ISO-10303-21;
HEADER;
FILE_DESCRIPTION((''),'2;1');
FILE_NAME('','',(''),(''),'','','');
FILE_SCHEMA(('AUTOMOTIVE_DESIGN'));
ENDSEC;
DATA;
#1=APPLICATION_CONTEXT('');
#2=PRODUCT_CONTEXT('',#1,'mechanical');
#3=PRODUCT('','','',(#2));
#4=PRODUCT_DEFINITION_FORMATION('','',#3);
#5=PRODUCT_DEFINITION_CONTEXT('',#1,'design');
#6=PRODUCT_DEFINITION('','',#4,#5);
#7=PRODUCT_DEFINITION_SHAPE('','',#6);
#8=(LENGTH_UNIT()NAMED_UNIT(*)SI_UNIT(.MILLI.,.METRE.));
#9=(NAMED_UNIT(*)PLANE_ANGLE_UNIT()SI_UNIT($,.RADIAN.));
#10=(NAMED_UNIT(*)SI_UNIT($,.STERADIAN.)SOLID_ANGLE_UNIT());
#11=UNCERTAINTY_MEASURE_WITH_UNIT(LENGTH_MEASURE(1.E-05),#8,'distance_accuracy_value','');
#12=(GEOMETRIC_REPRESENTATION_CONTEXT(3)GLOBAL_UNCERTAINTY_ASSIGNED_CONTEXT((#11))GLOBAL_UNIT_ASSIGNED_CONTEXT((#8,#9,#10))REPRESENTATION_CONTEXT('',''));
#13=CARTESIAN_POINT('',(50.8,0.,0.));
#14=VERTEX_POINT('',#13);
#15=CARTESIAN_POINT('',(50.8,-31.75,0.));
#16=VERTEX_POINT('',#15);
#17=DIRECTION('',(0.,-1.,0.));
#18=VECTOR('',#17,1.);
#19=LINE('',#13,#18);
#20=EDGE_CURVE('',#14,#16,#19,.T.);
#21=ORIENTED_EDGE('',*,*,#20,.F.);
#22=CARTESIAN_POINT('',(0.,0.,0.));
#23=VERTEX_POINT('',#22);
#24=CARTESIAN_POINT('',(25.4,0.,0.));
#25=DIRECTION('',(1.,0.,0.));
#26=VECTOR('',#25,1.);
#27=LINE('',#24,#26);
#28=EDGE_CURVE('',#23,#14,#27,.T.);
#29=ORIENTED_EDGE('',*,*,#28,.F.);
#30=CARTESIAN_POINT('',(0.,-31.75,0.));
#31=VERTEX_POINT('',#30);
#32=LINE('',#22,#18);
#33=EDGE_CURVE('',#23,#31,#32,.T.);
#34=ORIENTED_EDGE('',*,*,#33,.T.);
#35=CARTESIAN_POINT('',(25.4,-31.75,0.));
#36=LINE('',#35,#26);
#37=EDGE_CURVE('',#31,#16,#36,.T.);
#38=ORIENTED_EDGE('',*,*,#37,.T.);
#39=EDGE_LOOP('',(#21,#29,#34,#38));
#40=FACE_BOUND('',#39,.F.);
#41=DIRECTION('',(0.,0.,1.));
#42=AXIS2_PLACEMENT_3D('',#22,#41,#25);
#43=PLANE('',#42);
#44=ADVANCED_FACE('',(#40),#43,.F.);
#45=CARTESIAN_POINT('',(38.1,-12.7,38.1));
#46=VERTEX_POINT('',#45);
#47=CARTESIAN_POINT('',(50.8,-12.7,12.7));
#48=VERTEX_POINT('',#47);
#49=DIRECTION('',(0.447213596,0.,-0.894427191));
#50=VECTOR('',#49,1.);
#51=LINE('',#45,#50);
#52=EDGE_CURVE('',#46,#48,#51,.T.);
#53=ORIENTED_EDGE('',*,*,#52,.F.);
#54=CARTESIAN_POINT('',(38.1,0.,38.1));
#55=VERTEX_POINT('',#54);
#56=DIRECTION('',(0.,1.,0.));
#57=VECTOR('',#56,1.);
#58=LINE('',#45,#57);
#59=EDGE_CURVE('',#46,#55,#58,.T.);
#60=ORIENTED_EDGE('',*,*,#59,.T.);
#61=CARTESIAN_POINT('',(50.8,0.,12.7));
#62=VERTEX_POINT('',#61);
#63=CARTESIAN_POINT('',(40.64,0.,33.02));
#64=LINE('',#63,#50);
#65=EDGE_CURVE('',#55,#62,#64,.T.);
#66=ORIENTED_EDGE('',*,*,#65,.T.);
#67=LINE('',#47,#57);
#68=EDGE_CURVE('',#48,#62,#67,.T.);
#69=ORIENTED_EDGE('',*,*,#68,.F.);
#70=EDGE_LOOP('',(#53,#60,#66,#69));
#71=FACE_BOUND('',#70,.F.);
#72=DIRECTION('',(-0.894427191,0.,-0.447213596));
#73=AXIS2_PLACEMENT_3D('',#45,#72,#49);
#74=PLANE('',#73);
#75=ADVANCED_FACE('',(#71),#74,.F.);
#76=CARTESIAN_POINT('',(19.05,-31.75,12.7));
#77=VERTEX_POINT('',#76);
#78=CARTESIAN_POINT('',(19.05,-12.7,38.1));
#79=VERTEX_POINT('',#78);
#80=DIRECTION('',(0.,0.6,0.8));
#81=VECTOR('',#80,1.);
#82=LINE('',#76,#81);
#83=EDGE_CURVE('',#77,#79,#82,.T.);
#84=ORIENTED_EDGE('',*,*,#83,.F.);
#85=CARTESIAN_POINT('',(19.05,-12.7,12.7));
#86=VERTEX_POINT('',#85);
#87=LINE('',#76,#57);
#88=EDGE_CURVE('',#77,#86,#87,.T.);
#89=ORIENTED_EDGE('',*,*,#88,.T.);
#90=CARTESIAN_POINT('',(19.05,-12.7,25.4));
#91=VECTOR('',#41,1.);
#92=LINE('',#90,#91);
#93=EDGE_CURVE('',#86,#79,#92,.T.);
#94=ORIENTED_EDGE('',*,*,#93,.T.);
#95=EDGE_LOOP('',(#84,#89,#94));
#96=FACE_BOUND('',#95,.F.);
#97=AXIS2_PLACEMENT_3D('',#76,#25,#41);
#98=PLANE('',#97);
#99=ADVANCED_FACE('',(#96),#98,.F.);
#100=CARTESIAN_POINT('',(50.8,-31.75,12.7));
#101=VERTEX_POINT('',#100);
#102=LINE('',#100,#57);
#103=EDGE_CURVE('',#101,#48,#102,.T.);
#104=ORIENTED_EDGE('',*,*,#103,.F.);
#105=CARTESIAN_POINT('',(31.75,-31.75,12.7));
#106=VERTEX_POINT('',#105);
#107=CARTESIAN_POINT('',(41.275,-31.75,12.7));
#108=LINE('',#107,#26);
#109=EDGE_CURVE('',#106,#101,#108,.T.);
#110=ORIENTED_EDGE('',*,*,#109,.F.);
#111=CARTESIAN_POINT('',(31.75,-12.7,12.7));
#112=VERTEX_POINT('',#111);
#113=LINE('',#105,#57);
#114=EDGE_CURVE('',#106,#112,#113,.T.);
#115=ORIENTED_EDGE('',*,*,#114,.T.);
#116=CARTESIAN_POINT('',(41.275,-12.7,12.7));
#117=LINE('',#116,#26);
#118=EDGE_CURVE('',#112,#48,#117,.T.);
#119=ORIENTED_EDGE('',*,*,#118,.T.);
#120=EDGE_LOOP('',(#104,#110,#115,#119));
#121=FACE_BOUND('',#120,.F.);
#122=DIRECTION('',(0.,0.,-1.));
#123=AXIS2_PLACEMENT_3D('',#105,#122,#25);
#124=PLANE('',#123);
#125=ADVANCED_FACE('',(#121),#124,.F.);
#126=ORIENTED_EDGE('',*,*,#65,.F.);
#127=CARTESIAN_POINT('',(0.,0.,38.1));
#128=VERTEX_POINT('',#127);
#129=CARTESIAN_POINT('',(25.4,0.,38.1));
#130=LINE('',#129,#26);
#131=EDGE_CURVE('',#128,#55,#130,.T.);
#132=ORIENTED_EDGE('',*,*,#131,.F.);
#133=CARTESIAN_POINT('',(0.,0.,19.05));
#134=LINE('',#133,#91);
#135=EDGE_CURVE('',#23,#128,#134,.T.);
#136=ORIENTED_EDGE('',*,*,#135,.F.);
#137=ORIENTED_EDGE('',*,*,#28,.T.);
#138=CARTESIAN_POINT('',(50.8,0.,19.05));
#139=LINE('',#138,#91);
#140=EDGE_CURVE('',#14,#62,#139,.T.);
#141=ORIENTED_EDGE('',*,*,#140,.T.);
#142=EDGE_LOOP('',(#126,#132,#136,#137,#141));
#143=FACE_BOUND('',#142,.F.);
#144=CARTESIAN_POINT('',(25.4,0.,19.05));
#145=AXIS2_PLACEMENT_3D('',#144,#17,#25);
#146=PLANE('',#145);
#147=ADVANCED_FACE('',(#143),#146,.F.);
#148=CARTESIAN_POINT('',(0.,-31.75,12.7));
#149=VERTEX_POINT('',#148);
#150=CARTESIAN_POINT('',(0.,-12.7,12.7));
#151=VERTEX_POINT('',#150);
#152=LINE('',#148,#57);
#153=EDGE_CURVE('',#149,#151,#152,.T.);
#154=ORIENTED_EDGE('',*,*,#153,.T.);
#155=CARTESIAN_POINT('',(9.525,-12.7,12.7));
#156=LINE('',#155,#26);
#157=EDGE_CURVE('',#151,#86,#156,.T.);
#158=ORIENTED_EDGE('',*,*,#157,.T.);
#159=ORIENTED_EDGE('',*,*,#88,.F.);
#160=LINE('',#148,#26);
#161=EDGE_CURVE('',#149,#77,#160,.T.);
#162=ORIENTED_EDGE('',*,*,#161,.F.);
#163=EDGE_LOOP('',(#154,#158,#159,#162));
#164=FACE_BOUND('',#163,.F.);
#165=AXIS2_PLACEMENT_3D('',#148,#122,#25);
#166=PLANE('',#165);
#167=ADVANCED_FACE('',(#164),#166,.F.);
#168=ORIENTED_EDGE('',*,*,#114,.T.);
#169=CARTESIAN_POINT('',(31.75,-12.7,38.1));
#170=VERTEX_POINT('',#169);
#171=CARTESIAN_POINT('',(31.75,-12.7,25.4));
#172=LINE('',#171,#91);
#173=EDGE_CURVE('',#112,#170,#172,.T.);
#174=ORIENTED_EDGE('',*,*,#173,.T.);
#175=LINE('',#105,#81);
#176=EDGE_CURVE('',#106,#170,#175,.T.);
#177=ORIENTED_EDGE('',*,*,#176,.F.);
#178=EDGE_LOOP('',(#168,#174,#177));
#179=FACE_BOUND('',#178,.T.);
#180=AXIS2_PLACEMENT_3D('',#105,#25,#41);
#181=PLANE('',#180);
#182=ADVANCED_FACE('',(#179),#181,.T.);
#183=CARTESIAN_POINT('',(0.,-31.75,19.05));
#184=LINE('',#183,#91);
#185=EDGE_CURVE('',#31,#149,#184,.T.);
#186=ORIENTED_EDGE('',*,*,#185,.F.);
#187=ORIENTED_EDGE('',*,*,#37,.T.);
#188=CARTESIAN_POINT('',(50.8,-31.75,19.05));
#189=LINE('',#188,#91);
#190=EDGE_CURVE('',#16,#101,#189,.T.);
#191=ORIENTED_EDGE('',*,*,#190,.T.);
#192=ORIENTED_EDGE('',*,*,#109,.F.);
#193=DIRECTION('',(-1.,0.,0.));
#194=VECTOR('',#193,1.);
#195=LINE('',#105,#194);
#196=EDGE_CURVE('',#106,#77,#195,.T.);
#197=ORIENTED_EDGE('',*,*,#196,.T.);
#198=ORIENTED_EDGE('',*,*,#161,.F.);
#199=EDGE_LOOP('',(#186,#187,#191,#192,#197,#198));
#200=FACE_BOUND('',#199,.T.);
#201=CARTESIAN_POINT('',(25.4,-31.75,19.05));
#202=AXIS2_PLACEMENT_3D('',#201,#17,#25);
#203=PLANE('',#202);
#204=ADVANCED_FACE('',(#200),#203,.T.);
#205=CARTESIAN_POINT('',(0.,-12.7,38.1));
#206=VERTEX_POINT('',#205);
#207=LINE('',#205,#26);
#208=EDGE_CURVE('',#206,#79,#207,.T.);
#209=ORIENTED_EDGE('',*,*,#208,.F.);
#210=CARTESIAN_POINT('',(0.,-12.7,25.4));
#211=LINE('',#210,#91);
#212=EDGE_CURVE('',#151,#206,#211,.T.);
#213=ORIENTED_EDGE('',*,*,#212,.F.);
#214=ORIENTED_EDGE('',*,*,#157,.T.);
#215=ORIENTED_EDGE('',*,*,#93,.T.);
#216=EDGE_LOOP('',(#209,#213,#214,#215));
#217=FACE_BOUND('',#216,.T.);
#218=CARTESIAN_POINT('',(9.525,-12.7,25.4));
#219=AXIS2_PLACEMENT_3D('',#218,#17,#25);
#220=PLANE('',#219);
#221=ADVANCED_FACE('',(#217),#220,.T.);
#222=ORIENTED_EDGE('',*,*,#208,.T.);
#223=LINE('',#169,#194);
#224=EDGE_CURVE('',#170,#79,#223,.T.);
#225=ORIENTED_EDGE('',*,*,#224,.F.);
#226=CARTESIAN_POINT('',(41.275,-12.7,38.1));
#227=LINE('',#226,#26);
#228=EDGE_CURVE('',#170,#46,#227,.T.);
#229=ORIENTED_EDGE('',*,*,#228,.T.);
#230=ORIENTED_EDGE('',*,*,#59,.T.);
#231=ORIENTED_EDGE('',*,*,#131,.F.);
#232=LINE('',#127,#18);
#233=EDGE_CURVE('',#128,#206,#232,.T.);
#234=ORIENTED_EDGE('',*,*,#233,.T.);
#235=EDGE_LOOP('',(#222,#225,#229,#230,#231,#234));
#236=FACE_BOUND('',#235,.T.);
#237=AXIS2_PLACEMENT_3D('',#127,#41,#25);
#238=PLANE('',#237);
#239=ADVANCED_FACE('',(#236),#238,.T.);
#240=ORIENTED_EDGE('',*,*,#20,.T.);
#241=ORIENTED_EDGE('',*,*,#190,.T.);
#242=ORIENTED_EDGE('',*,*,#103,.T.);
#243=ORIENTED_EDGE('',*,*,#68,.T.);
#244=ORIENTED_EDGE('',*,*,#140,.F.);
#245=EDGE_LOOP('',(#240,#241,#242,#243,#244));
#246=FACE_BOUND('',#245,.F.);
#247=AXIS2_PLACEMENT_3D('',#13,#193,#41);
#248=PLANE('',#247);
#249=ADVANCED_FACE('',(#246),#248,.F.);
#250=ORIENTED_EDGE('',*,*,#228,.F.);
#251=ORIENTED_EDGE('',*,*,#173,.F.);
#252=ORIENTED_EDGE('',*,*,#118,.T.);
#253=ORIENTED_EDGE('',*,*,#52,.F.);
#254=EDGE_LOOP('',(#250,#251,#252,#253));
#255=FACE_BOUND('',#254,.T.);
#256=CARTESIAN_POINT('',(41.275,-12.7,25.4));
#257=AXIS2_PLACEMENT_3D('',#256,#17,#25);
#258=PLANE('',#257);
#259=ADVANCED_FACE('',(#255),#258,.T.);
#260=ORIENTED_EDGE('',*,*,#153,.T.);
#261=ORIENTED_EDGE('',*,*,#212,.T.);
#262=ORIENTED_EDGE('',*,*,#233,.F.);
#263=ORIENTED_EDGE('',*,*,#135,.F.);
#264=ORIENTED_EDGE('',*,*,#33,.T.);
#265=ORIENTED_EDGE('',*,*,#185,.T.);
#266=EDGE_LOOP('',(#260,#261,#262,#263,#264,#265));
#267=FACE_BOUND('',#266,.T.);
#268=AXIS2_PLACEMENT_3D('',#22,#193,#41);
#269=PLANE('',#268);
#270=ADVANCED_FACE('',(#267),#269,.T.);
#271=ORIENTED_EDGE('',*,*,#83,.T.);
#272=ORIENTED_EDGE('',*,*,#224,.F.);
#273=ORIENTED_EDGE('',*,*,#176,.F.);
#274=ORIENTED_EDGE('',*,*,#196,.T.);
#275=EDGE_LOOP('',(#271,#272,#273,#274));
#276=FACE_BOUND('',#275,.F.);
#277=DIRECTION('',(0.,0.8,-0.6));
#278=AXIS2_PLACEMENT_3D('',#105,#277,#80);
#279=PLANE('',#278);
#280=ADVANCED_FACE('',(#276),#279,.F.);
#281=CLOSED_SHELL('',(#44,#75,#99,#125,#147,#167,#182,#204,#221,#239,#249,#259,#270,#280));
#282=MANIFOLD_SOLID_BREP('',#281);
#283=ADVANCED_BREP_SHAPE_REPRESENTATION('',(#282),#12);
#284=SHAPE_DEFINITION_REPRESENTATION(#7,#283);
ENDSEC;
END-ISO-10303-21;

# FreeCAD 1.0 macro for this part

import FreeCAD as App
import Part
import Sketcher
Q = App.Units.Quantity

doc = App.newDocument("Part")
body = doc.addObject("PartDesign::Body", "Body")

# Sketch on XZ plane
sketch1 = body.newObject("Sketcher::SketchObject", "Sketch")
sketch1.AttachmentSupport = (doc.getObject("XZ_Plane"), [""])
sketch1.MapMode = "FlatFace"
sketch1.addGeometry(Part.LineSegment(App.Vector(0, 38, 0), App.Vector(0, 0, 0)), False)
sketch1.addGeometry(Part.LineSegment(App.Vector(0, 0, 0), App.Vector(51, 0, 0)), False)
sketch1.addGeometry(Part.LineSegment(App.Vector(51, 0, 0), App.Vector(51, 38, 0)), False)
sketch1.addGeometry(Part.LineSegment(App.Vector(51, 38, 0), App.Vector(0, 38, 0)), False)
sketch1.addConstraint(Sketcher.Constraint("Coincident", 0, 2, 1, 1))
sketch1.addConstraint(Sketcher.Constraint("Coincident", 1, 2, 2, 1))
sketch1.addConstraint(Sketcher.Constraint("Coincident", 2, 2, 3, 1))
sketch1.addConstraint(Sketcher.Constraint("Coincident", 3, 2, 0, 1))
sketch1.addConstraint(Sketcher.Constraint("Vertical", 0))
sketch1.addConstraint(Sketcher.Constraint("Horizontal", 1))
sketch1.addConstraint(Sketcher.Constraint("Vertical", 2))
sketch1.addConstraint(Sketcher.Constraint("Horizontal", 3))
sketch1.addConstraint(Sketcher.Constraint("Coincident", 0, 2, -1, 1))
sketch1.addConstraint(Sketcher.Constraint("DistanceX", 1, 1, 1, 2, Q("2 in")))
sketch1.addConstraint(Sketcher.Constraint("DistanceY", 0, 2, 0, 1, Q("1.5 in")))
pad1 = body.newObject("PartDesign::Pad", "Pad")
pad1.Profile = sketch1
pad1.Length = Q("1.25 in")

# Sketch on XZ plane
sketch2 = body.newObject("Sketcher::SketchObject", "Sketch001")
sketch2.AttachmentSupport = (doc.getObject("XZ_Plane"), [""])
sketch2.MapMode = "FlatFace"
sketch2.AttachmentOffset = App.Placement(App.Vector(0, 0, 1.25 * 25.4), App.Rotation())
sketch2.addGeometry(Part.LineSegment(App.Vector(0, 38, 0), App.Vector(0, 13, 0)), False)
sketch2.addGeometry(Part.LineSegment(App.Vector(0, 13, 0), App.Vector(19, 13, 0)), False)
sketch2.addGeometry(Part.LineSegment(App.Vector(19, 13, 0), App.Vector(19, 38, 0)), False)
sketch2.addGeometry(Part.LineSegment(App.Vector(19, 38, 0), App.Vector(0, 38, 0)), False)
sketch2.addConstraint(Sketcher.Constraint("Coincident", 0, 2, 1, 1))
sketch2.addConstraint(Sketcher.Constraint("Coincident", 1, 2, 2, 1))
sketch2.addConstraint(Sketcher.Constraint("Coincident", 2, 2, 3, 1))
sketch2.addConstraint(Sketcher.Constraint("Coincident", 3, 2, 0, 1))
sketch2.addConstraint(Sketcher.Constraint("Vertical", 0))
sketch2.addConstraint(Sketcher.Constraint("Horizontal", 1))
sketch2.addConstraint(Sketcher.Constraint("Vertical", 2))
sketch2.addConstraint(Sketcher.Constraint("Horizontal", 3))
sketch2.addConstraint(Sketcher.Constraint("PointOnObject", 0, 2, -2))
sketch2.addConstraint(Sketcher.Constraint("DistanceY", 0, 2, 0, 1, Q("1 in")))
sketch2.addConstraint(Sketcher.Constraint("DistanceX", 1, 1, 1, 2, Q("0.75 in")))
sketch2.addConstraint(Sketcher.Constraint("DistanceY", -1, 1, 0, 2, Q("0.5 in")))
pocket1 = body.newObject("PartDesign::Pocket", "Pocket")
pocket1.Profile = sketch2
pocket1.Length = Q("0.75 in")

# Sketch on XZ plane
sketch3 = body.newObject("Sketcher::SketchObject", "Sketch002")
sketch3.AttachmentSupport = (doc.getObject("XZ_Plane"), [""])
sketch3.MapMode = "FlatFace"
sketch3.AttachmentOffset = App.Placement(App.Vector(0, 0, 1.25 * 25.4), App.Rotation())
sketch3.addGeometry(Part.LineSegment(App.Vector(32, 38, 0), App.Vector(32, 13, 0)), False)
sketch3.addGeometry(Part.LineSegment(App.Vector(32, 13, 0), App.Vector(51, 13, 0)), False)
sketch3.addGeometry(Part.LineSegment(App.Vector(51, 13, 0), App.Vector(51, 38, 0)), False)
sketch3.addGeometry(Part.LineSegment(App.Vector(51, 38, 0), App.Vector(32, 38, 0)), False)
sketch3.addConstraint(Sketcher.Constraint("Coincident", 0, 2, 1, 1))
sketch3.addConstraint(Sketcher.Constraint("Coincident", 1, 2, 2, 1))
sketch3.addConstraint(Sketcher.Constraint("Coincident", 2, 2, 3, 1))
sketch3.addConstraint(Sketcher.Constraint("Coincident", 3, 2, 0, 1))
sketch3.addConstraint(Sketcher.Constraint("Vertical", 0))
sketch3.addConstraint(Sketcher.Constraint("Horizontal", 1))
sketch3.addConstraint(Sketcher.Constraint("Vertical", 2))
sketch3.addConstraint(Sketcher.Constraint("Horizontal", 3))
sketch3.addConstraint(Sketcher.Constraint("DistanceY", 0, 2, 0, 1, Q("1 in")))
sketch3.addConstraint(Sketcher.Constraint("DistanceX", -1, 1, 1, 2, Q("2 in")))
sketch3.addConstraint(Sketcher.Constraint("DistanceX", 1, 1, 1, 2, Q("0.75 in")))
sketch3.addConstraint(Sketcher.Constraint("DistanceY", -1, 1, 0, 2, Q("0.5 in")))
pocket2 = body.newObject("PartDesign::Pocket", "Pocket001")
pocket2.Profile = sketch3
pocket2.Length = Q("0.75 in")

# Sketch on YZ plane
sketch4 = body.newObject("Sketcher::SketchObject", "Sketch003")
sketch4.AttachmentSupport = (doc.getObject("YZ_Plane"), [""])
sketch4.MapMode = "FlatFace"
sketch4.AttachmentOffset = App.Placement(App.Vector(0, 0, 1.25 * 25.4), App.Rotation())
sketch4.addGeometry(Part.LineSegment(App.Vector(-32, 38, 0), App.Vector(-32, 13, 0)), False)
sketch4.addGeometry(Part.LineSegment(App.Vector(-32, 13, 0), App.Vector(-13, 38, 0)), False)
sketch4.addGeometry(Part.LineSegment(App.Vector(-13, 38, 0), App.Vector(-32, 38, 0)), False)
sketch4.addConstraint(Sketcher.Constraint("Coincident", 0, 2, 1, 1))
sketch4.addConstraint(Sketcher.Constraint("Coincident", 1, 2, 2, 1))
sketch4.addConstraint(Sketcher.Constraint("Coincident", 2, 2, 0, 1))
sketch4.addConstraint(Sketcher.Constraint("Vertical", 0))
sketch4.addConstraint(Sketcher.Constraint("Horizontal", 2))
sketch4.addConstraint(Sketcher.Constraint("DistanceY", 0, 2, 0, 1, Q("1 in")))
sketch4.addConstraint(Sketcher.Constraint("DistanceX", 2, 2, 2, 1, Q("0.75 in")))
sketch4.addConstraint(Sketcher.Constraint("DistanceY", -1, 1, 0, 2, Q("0.5 in")))
sketch4.addConstraint(Sketcher.Constraint("DistanceX", 1, 2, -1, 1, Q("0.5 in")))
pocket3 = body.newObject("PartDesign::Pocket", "Pocket002")
pocket3.Profile = sketch4
pocket3.Length = Q("1 in")

# Sketch on XZ plane
sketch5 = body.newObject("Sketcher::SketchObject", "Sketch004")
sketch5.AttachmentSupport = (doc.getObject("XZ_Plane"), [""])
sketch5.MapMode = "FlatFace"
sketch5.AttachmentOffset = App.Placement(App.Vector(0, 0, 0.5 * 25.4), App.Rotation())
sketch5.addGeometry(Part.LineSegment(App.Vector(51, 38, 0), App.Vector(38, 38, 0)), False)
sketch5.addGeometry(Part.LineSegment(App.Vector(38, 38, 0), App.Vector(51, 13, 0)), False)
sketch5.addGeometry(Part.LineSegment(App.Vector(51, 13, 0), App.Vector(51, 38, 0)), False)
sketch5.addConstraint(Sketcher.Constraint("Coincident", 0, 2, 1, 1))
sketch5.addConstraint(Sketcher.Constraint("Coincident", 1, 2, 2, 1))
sketch5.addConstraint(Sketcher.Constraint("Coincident", 2, 2, 0, 1))
sketch5.addConstraint(Sketcher.Constraint("Horizontal", 0))
sketch5.addConstraint(Sketcher.Constraint("Vertical", 2))
sketch5.addConstraint(Sketcher.Constraint("DistanceY", 2, 1, 2, 2, Q("1 in")))
sketch5.addConstraint(Sketcher.Constraint("DistanceX", 0, 2, 0, 1, Q("0.5 in")))
sketch5.addConstraint(Sketcher.Constraint("DistanceX", -1, 1, 1, 2, Q("2 in")))
sketch5.addConstraint(Sketcher.Constraint("DistanceY", -1, 1, 0, 2, Q("1.5 in")))
pocket4 = body.newObject("PartDesign::Pocket", "Pocket003")
pocket4.Profile = sketch5
pocket4.Length = Q("1 in")

doc.recompute()
